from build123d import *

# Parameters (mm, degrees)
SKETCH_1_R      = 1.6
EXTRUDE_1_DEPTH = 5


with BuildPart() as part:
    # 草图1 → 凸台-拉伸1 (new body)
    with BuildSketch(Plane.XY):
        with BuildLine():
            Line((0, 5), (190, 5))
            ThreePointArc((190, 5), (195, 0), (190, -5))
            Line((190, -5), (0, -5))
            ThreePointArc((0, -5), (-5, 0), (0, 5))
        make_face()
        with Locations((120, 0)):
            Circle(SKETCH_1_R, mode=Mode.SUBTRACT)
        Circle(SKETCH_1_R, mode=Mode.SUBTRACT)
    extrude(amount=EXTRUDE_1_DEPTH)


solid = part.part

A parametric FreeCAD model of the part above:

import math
import FreeCAD as App
import Part
import Sketcher
from FreeCAD import Vector

doc = App.newDocument("Part")
body = doc.addObject("PartDesign::Body", "Body")

sketch1 = doc.addObject("Sketcher::SketchObject", "Sketch")
body.addObject(sketch1)
sketch1.AttachmentSupport = (doc.XY_Plane, [""])
sketch1.MapMode = "FlatFace"
sketch1.addGeometry(Part.LineSegment(Vector(190, 5, 0), Vector(0, 5, 0)), False)
sketch1.addGeometry(Part.ArcOfCircle(Part.Circle(Vector(0, 0, 0), Vector(0, 0, 1), 5), math.radians(90), math.radians(270)), False)
sketch1.addGeometry(Part.LineSegment(Vector(0, -5, 0), Vector(190, -5, 0)), False)
sketch1.addGeometry(Part.ArcOfCircle(Part.Circle(Vector(190, 0, 0), Vector(0, 0, 1), 5), math.radians(-90), math.radians(90)), False)
sketch1.addGeometry(Part.Circle(Vector(120, 0, 0), Vector(0, 0, 1), 1.6), False)
sketch1.addGeometry(Part.Circle(Vector(0, 0, 0), Vector(0, 0, 1), 1.6), False)
sketch1.addConstraint(Sketcher.Constraint("Tangent", 0, 2, 1, 1))
sketch1.addConstraint(Sketcher.Constraint("Tangent", 1, 2, 2, 1))
sketch1.addConstraint(Sketcher.Constraint("Tangent", 2, 2, 3, 1))
sketch1.addConstraint(Sketcher.Constraint("Tangent", 3, 2, 0, 1))
sketch1.addConstraint(Sketcher.Constraint("Horizontal", 0))
sketch1.addConstraint(Sketcher.Constraint("Horizontal", 2))
sketch1.addConstraint(Sketcher.Constraint("Coincident", 1, 3, -1, 1))
sketch1.addConstraint(Sketcher.Constraint("Coincident", 5, 3, -1, 1))
sketch1.addConstraint(Sketcher.Constraint("Equal", 4, 5))
sketch1.addConstraint(Sketcher.Constraint("PointOnObject", 4, 3, -1))
sketch1.addConstraint(Sketcher.Constraint("Radius", 1, 5.0))
sketch1.addConstraint(Sketcher.Constraint("Diameter", 4, 3.2))
sketch1.addConstraint(Sketcher.Constraint("DistanceX", 0, 2, 0, 1, 190.0))
sketch1.addConstraint(Sketcher.Constraint("DistanceX", -1, 1, 4, 3, 120.0))
pad1 = doc.addObject("PartDesign::Pad", "Pad")
body.addObject(pad1)
pad1.Profile = sketch1
pad1.Length = 5

doc.recompute()
